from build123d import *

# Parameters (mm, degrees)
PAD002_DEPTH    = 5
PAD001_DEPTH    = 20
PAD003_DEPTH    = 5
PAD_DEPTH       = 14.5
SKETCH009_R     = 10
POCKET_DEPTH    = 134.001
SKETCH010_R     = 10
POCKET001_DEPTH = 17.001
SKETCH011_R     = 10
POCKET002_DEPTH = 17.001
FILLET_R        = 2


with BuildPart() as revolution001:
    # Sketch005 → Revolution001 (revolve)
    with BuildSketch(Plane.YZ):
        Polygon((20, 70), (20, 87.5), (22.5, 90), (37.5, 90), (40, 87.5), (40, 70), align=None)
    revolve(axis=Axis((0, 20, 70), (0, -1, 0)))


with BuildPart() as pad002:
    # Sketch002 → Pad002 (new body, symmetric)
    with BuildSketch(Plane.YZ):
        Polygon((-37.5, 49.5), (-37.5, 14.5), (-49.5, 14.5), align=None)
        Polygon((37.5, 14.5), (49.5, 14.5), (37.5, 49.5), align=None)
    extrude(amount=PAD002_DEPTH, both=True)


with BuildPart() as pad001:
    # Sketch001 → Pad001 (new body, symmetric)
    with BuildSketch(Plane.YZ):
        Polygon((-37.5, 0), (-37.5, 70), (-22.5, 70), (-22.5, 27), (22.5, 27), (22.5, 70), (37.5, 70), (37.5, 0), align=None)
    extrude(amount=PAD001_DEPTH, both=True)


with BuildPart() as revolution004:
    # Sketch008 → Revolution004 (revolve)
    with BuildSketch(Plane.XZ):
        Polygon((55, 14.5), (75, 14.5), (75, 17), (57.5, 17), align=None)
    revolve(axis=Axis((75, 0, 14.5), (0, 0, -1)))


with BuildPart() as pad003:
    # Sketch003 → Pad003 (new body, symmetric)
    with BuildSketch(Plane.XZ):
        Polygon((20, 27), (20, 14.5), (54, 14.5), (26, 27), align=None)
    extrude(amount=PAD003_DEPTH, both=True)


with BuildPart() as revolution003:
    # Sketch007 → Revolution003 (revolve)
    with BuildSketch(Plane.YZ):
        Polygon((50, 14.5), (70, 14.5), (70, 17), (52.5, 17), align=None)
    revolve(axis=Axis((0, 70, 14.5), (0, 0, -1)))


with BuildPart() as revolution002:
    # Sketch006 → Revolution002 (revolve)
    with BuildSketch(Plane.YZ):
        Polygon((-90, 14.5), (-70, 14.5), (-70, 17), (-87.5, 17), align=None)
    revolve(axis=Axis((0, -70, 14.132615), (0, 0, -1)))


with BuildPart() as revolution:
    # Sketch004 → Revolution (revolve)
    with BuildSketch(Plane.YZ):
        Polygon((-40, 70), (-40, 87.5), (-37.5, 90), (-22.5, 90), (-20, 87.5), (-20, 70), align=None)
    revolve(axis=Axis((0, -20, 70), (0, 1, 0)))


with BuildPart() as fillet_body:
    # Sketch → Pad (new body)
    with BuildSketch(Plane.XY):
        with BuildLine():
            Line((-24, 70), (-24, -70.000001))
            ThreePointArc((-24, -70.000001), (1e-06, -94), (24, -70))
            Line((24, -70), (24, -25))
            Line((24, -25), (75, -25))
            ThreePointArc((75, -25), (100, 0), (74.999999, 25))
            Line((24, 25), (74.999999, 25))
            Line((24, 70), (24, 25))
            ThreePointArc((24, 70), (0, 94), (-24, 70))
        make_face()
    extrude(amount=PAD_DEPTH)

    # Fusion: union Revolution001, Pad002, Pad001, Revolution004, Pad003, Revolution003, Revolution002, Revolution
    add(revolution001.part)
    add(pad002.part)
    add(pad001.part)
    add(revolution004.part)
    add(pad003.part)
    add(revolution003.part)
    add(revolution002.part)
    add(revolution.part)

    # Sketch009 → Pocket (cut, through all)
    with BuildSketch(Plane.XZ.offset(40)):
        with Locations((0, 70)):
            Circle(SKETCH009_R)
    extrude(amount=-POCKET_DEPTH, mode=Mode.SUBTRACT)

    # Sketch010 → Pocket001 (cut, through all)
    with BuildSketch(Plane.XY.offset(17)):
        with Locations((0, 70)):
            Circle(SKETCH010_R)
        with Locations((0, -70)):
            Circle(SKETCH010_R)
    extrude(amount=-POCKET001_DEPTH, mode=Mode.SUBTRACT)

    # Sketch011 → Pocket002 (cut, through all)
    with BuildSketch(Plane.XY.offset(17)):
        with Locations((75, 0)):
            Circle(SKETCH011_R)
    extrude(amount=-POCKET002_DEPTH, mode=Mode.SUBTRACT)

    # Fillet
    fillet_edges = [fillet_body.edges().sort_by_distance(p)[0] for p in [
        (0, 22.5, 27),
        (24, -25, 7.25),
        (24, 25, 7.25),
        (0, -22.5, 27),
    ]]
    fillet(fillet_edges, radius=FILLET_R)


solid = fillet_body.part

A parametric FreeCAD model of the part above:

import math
import FreeCAD as App
import Part
import Sketcher

V = App.Vector
Q = App.Units.Quantity


def edges_at(feature, points):
    """Names of the edges that pass closest to the given points."""
    edges = feature.Shape.Edges
    near = lambda p: min(range(len(edges)), key=lambda i: edges[i].distToShape(Part.Vertex(*p))[0])
    return sorted({f"Edge{near(p) + 1}" for p in points})

doc = App.newDocument("Part")
body = doc.addObject("PartDesign::Body", "Body")

# Sketch on YZ plane
sketch1 = doc.addObject("Sketcher::SketchObject", "Sketch")
body.addObject(sketch1)
sketch1.AttachmentSupport = (doc.YZ_Plane, [""])
sketch1.MapMode = "FlatFace"
sketch1.addGeometry(Part.LineSegment(V(20, 87.5, 0), V(20, 70, 0)), False)
sketch1.addGeometry(Part.LineSegment(V(20, 70, 0), V(40, 70, 0)), False)
sketch1.addGeometry(Part.LineSegment(V(40, 70, 0), V(40, 87.5, 0)), False)
sketch1.addGeometry(Part.LineSegment(V(40, 87.5, 0), V(37.5, 90, 0)), False)
sketch1.addGeometry(Part.LineSegment(V(37.5, 90, 0), V(22.5, 90, 0)), False)
sketch1.addGeometry(Part.LineSegment(V(22.5, 90, 0), V(20, 87.5, 0)), False)
sketch1.addGeometry(Part.LineSegment(V(40, 70, 0), V(20, 70, 0)), True)  # axis
sketch1.addConstraint(Sketcher.Constraint("Coincident", 0, 2, 1, 1))
sketch1.addConstraint(Sketcher.Constraint("Coincident", 1, 2, 2, 1))
sketch1.addConstraint(Sketcher.Constraint("Coincident", 2, 2, 3, 1))
sketch1.addConstraint(Sketcher.Constraint("Coincident", 3, 2, 4, 1))
sketch1.addConstraint(Sketcher.Constraint("Coincident", 4, 2, 5, 1))
sketch1.addConstraint(Sketcher.Constraint("Coincident", 5, 2, 0, 1))
sketch1.addConstraint(Sketcher.Constraint("Vertical", 0))
sketch1.addConstraint(Sketcher.Constraint("Horizontal", 1))
sketch1.addConstraint(Sketcher.Constraint("Vertical", 2))
sketch1.addConstraint(Sketcher.Constraint("Horizontal", 4))
sketch1.addConstraint(Sketcher.Constraint("Horizontal", 6))
sketch1.addConstraint(Sketcher.Constraint("Coincident", 6, 1, 1, 2))
sketch1.addConstraint(Sketcher.Constraint("Perpendicular", 3, 5))
sketch1.addConstraint(Sketcher.Constraint("Horizontal", 2, 2, 5, 2))
sketch1.addConstraint(Sketcher.Constraint("Vertical", 5, 2, 6, 2))
sketch1.addConstraint(Sketcher.Constraint("Equal", 3, 5))
sketch1.addConstraint(Sketcher.Constraint("DistanceX", 1, 1, 1, 2, Q("20 mm")))
sketch1.addConstraint(Sketcher.Constraint("DistanceX", 4, 2, 4, 1, Q("15 mm")))
sketch1.addConstraint(Sketcher.Constraint("DistanceY", 0, 2, 0, 1, Q("17.5 mm")))
sketch1.addConstraint(Sketcher.Constraint("DistanceX", -1, 1, 0, 2, Q("20 mm")))
sketch1.addConstraint(Sketcher.Constraint("DistanceY", -1, 1, 0, 2, Q("70 mm")))
revolution = doc.addObject("PartDesign::Revolution", "Revolution")
body.addObject(revolution)
revolution.Profile = sketch1
revolution.ReferenceAxis = (sketch1, ["Axis0"])
revolution.Angle = 360
body2 = doc.addObject("PartDesign::Body", "Body001")
body2.AllowCompound = True

# Sketch on YZ plane
sketch2 = doc.addObject("Sketcher::SketchObject", "Sketch001")
body2.addObject(sketch2)
sketch2.AttachmentSupport = (doc.getObject("YZ_Plane001"), [""])
sketch2.MapMode = "FlatFace"
sketch2.addGeometry(Part.LineSegment(V(-37.5, 14.5, 0), V(-37.5, 49.5, 0)), False)
sketch2.addGeometry(Part.LineSegment(V(-37.5, 49.5, 0), V(-49.5, 14.5, 0)), False)
sketch2.addGeometry(Part.LineSegment(V(-49.5, 14.5, 0), V(-37.5, 14.5, 0)), False)
sketch2.addGeometry(Part.LineSegment(V(37.5, 14.5, 0), V(49.5, 14.5, 0)), False)
sketch2.addGeometry(Part.LineSegment(V(49.5, 14.5, 0), V(37.5, 49.5, 0)), False)
sketch2.addGeometry(Part.LineSegment(V(37.5, 49.5, 0), V(37.5, 14.5, 0)), False)
sketch2.addConstraint(Sketcher.Constraint("Coincident", 0, 2, 1, 1))
sketch2.addConstraint(Sketcher.Constraint("Coincident", 1, 2, 2, 1))
sketch2.addConstraint(Sketcher.Constraint("Coincident", 2, 2, 0, 1))
sketch2.addConstraint(Sketcher.Constraint("Coincident", 3, 2, 4, 1))
sketch2.addConstraint(Sketcher.Constraint("Coincident", 4, 2, 5, 1))
sketch2.addConstraint(Sketcher.Constraint("Coincident", 5, 2, 3, 1))
sketch2.addConstraint(Sketcher.Constraint("Vertical", 0))
sketch2.addConstraint(Sketcher.Constraint("Horizontal", 2))
sketch2.addConstraint(Sketcher.Constraint("Horizontal", 3))
sketch2.addConstraint(Sketcher.Constraint("Vertical", 5))
sketch2.addConstraint(Sketcher.Constraint("Symmetric", 1, 2, 3, 2, -2))
sketch2.addConstraint(Sketcher.Constraint("Symmetric", 0, 2, 4, 2, -2))
sketch2.addConstraint(Sketcher.Constraint("DistanceX", 2, 1, 2, 2, Q("12 mm")))
sketch2.addConstraint(Sketcher.Constraint("DistanceY", 0, 1, 0, 2, Q("35 mm")))
sketch2.addConstraint(Sketcher.Constraint("DistanceX", 2, 2, 3, 2, Q("87 mm")))
sketch2.addConstraint(Sketcher.Constraint("DistanceY", -1, 1, 0, 2, Q("49.5 mm")))
pad1 = doc.addObject("PartDesign::Pad", "Pad")
body2.addObject(pad1)
pad1.Profile = sketch2
pad1.Length = 10
pad1.Midplane = True
body3 = doc.addObject("PartDesign::Body", "Body002")

# Sketch on YZ plane
sketch3 = doc.addObject("Sketcher::SketchObject", "Sketch002")
body3.addObject(sketch3)
sketch3.AttachmentSupport = (doc.getObject("YZ_Plane002"), [""])
sketch3.MapMode = "FlatFace"
sketch3.addGeometry(Part.LineSegment(V(-37.5, 70, 0), V(-37.5, 0, 0)), False)
sketch3.addGeometry(Part.LineSegment(V(-37.5, 0, 0), V(37.5, 0, 0)), False)
sketch3.addGeometry(Part.LineSegment(V(37.5, 0, 0), V(37.5, 70, 0)), False)
sketch3.addGeometry(Part.LineSegment(V(37.5, 70, 0), V(22.5, 70, 0)), False)
sketch3.addGeometry(Part.LineSegment(V(22.5, 70, 0), V(22.5, 27, 0)), False)
sketch3.addGeometry(Part.LineSegment(V(22.5, 27, 0), V(-22.5, 27, 0)), False)
sketch3.addGeometry(Part.LineSegment(V(-22.5, 27, 0), V(-22.5, 70, 0)), False)
sketch3.addGeometry(Part.LineSegment(V(-22.5, 70, 0), V(-37.5, 70, 0)), False)
sketch3.addConstraint(Sketcher.Constraint("Coincident", 0, 2, 1, 1))
sketch3.addConstraint(Sketcher.Constraint("Coincident", 1, 2, 2, 1))
sketch3.addConstraint(Sketcher.Constraint("Coincident", 2, 2, 3, 1))
sketch3.addConstraint(Sketcher.Constraint("Coincident", 3, 2, 4, 1))
sketch3.addConstraint(Sketcher.Constraint("Coincident", 4, 2, 5, 1))
sketch3.addConstraint(Sketcher.Constraint("Coincident", 5, 2, 6, 1))
sketch3.addConstraint(Sketcher.Constraint("Coincident", 6, 2, 7, 1))
sketch3.addConstraint(Sketcher.Constraint("Coincident", 7, 2, 0, 1))
sketch3.addConstraint(Sketcher.Constraint("Vertical", 0))
sketch3.addConstraint(Sketcher.Constraint("Horizontal", 1))
sketch3.addConstraint(Sketcher.Constraint("Vertical", 2))
sketch3.addConstraint(Sketcher.Constraint("Horizontal", 3))
sketch3.addConstraint(Sketcher.Constraint("Vertical", 4))
sketch3.addConstraint(Sketcher.Constraint("Horizontal", 5))
sketch3.addConstraint(Sketcher.Constraint("Vertical", 6))
sketch3.addConstraint(Sketcher.Constraint("Horizontal", 7))
sketch3.addConstraint(Sketcher.Constraint("Symmetric", 0, 2, 1, 2, -1, 1))
sketch3.addConstraint(Sketcher.Constraint("Symmetric", 3, 2, 6, 2, -2))
sketch3.addConstraint(Sketcher.Constraint("DistanceX", 1, 1, 1, 2, Q("75 mm")))
sketch3.addConstraint(Sketcher.Constraint("DistanceX", 3, 2, 3, 1, Q("15 mm")))
sketch3.addConstraint(Sketcher.Constraint("DistanceY", 0, 2, 0, 1, Q("70 mm")))
sketch3.addConstraint(Sketcher.Constraint("DistanceY", 4, 2, 4, 1, Q("43 mm")))
pad2 = doc.addObject("PartDesign::Pad", "Pad001")
body3.addObject(pad2)
pad2.Profile = sketch3
pad2.Length = 40
pad2.Midplane = True
body4 = doc.addObject("PartDesign::Body", "Body003")

# Sketch on XZ plane
sketch4 = doc.addObject("Sketcher::SketchObject", "Sketch003")
body4.addObject(sketch4)
sketch4.AttachmentSupport = (doc.getObject("XZ_Plane003"), [""])
sketch4.MapMode = "FlatFace"
sketch4.addGeometry(Part.LineSegment(V(55, 14.5, 0), V(75, 14.5, 0)), False)
sketch4.addGeometry(Part.LineSegment(V(75, 14.5, 0), V(75, 17, 0)), False)
sketch4.addGeometry(Part.LineSegment(V(75, 17, 0), V(57.5, 17, 0)), False)
sketch4.addGeometry(Part.LineSegment(V(57.5, 17, 0), V(55, 14.5, 0)), False)
sketch4.addGeometry(Part.LineSegment(V(75, 17, 0), V(75, 14.5, 0)), True)  # axis
sketch4.addConstraint(Sketcher.Constraint("Coincident", 0, 2, 1, 1))
sketch4.addConstraint(Sketcher.Constraint("Coincident", 1, 2, 2, 1))
sketch4.addConstraint(Sketcher.Constraint("Coincident", 2, 2, 3, 1))
sketch4.addConstraint(Sketcher.Constraint("Coincident", 3, 2, 0, 1))
sketch4.addConstraint(Sketcher.Constraint("Horizontal", 0))
sketch4.addConstraint(Sketcher.Constraint("Vertical", 1))
sketch4.addConstraint(Sketcher.Constraint("Horizontal", 2))
sketch4.addConstraint(Sketcher.Constraint("Vertical", 4))
sketch4.addConstraint(Sketcher.Constraint("Coincident", 4, 1, 1, 2))
sketch4.addConstraint(Sketcher.Constraint("Horizontal", 3, 2, 4, 2))
sketch4.addConstraint(Sketcher.Constraint("DistanceX", 0, 1, 0, 2, Q("20 mm")))
sketch4.addConstraint(Sketcher.Constraint("Angle", 3, Q("-135 deg")))
sketch4.addConstraint(Sketcher.Constraint("DistanceX", 2, 2, 2, 1, Q("17.5 mm")))
sketch4.addConstraint(Sketcher.Constraint("DistanceX", -1, 1, 0, 2, Q("75 mm")))
sketch4.addConstraint(Sketcher.Constraint("DistanceY", -1, 1, 1, 2, Q("17 mm")))
revolution2 = doc.addObject("PartDesign::Revolution", "Revolution001")
body4.addObject(revolution2)
revolution2.Profile = sketch4
revolution2.ReferenceAxis = (sketch4, ["Axis0"])
revolution2.Angle = 360
body5 = doc.addObject("PartDesign::Body", "Body004")

# Sketch on XZ plane
sketch5 = doc.addObject("Sketcher::SketchObject", "Sketch004")
body5.addObject(sketch5)
sketch5.AttachmentSupport = (doc.getObject("XZ_Plane004"), [""])
sketch5.MapMode = "FlatFace"
sketch5.addGeometry(Part.LineSegment(V(20, 27, 0), V(20, 14.5, 0)), False)
sketch5.addGeometry(Part.LineSegment(V(20, 14.5, 0), V(54, 14.5, 0)), False)
sketch5.addGeometry(Part.LineSegment(V(54, 14.5, 0), V(26, 27, 0)), False)
sketch5.addGeometry(Part.LineSegment(V(26, 27, 0), V(20, 27, 0)), False)
sketch5.addConstraint(Sketcher.Constraint("Coincident", 0, 2, 1, 1))
sketch5.addConstraint(Sketcher.Constraint("Coincident", 1, 2, 2, 1))
sketch5.addConstraint(Sketcher.Constraint("Coincident", 2, 2, 3, 1))
sketch5.addConstraint(Sketcher.Constraint("Coincident", 3, 2, 0, 1))
sketch5.addConstraint(Sketcher.Constraint("Vertical", 0))
sketch5.addConstraint(Sketcher.Constraint("Horizontal", 1))
sketch5.addConstraint(Sketcher.Constraint("Horizontal", 3))
sketch5.addConstraint(Sketcher.Constraint("DistanceX", 1, 1, 1, 2, Q("34 mm")))
sketch5.addConstraint(Sketcher.Constraint("DistanceX", 3, 2, 3, 1, Q("6 mm")))
sketch5.addConstraint(Sketcher.Constraint("DistanceY", 0, 2, 0, 1, Q("12.5 mm")))
sketch5.addConstraint(Sketcher.Constraint("DistanceX", -1, 1, 0, 2, Q("20 mm")))
sketch5.addConstraint(Sketcher.Constraint("DistanceY", -1, 1, 2, 2, Q("27 mm")))
pad3 = doc.addObject("PartDesign::Pad", "Pad002")
body5.addObject(pad3)
pad3.Profile = sketch5
pad3.Length = 10
pad3.Midplane = True
body6 = doc.addObject("PartDesign::Body", "Body005")

# Sketch on YZ plane
sketch6 = doc.addObject("Sketcher::SketchObject", "Sketch005")
body6.addObject(sketch6)
sketch6.AttachmentSupport = (doc.getObject("YZ_Plane005"), [""])
sketch6.MapMode = "FlatFace"
sketch6.addGeometry(Part.LineSegment(V(50, 14.5, 0), V(70, 14.5, 0)), False)
sketch6.addGeometry(Part.LineSegment(V(70, 14.5, 0), V(70, 17, 0)), False)
sketch6.addGeometry(Part.LineSegment(V(70, 17, 0), V(52.5, 17, 0)), False)
sketch6.addGeometry(Part.LineSegment(V(52.5, 17, 0), V(50, 14.5, 0)), False)
sketch6.addGeometry(Part.LineSegment(V(70, 17, 0), V(70, 14.5, 0)), True)  # axis
sketch6.addConstraint(Sketcher.Constraint("Coincident", 0, 2, 1, 1))
sketch6.addConstraint(Sketcher.Constraint("Coincident", 1, 2, 2, 1))
sketch6.addConstraint(Sketcher.Constraint("Coincident", 2, 2, 3, 1))
sketch6.addConstraint(Sketcher.Constraint("Coincident", 3, 2, 0, 1))
sketch6.addConstraint(Sketcher.Constraint("Horizontal", 0))
sketch6.addConstraint(Sketcher.Constraint("Vertical", 1))
sketch6.addConstraint(Sketcher.Constraint("Horizontal", 2))
sketch6.addConstraint(Sketcher.Constraint("Vertical", 4))
sketch6.addConstraint(Sketcher.Constraint("Coincident", 4, 1, 1, 2))
sketch6.addConstraint(Sketcher.Constraint("Horizontal", 3, 2, 4, 2))
sketch6.addConstraint(Sketcher.Constraint("DistanceX", 0, 1, 0, 2, Q("20 mm")))
sketch6.addConstraint(Sketcher.Constraint("Angle", 3, Q("-135 deg")))
sketch6.addConstraint(Sketcher.Constraint("DistanceX", 2, 2, 2, 1, Q("17.5 mm")))
sketch6.addConstraint(Sketcher.Constraint("DistanceX", -1, 1, 0, 2, Q("70 mm")))
sketch6.addConstraint(Sketcher.Constraint("DistanceY", -1, 1, 1, 2, Q("17 mm")))
revolution3 = doc.addObject("PartDesign::Revolution", "Revolution002")
body6.addObject(revolution3)
revolution3.Profile = sketch6
revolution3.ReferenceAxis = (sketch6, ["Axis0"])
revolution3.Angle = 360
body7 = doc.addObject("PartDesign::Body", "Body006")

# Sketch on YZ plane
sketch7 = doc.addObject("Sketcher::SketchObject", "Sketch006")
body7.addObject(sketch7)
sketch7.AttachmentSupport = (doc.getObject("YZ_Plane006"), [""])
sketch7.MapMode = "FlatFace"
sketch7.addGeometry(Part.LineSegment(V(-90, 14.5, 0), V(-70, 14.5, 0)), False)
sketch7.addGeometry(Part.LineSegment(V(-70, 14.5, 0), V(-70, 17, 0)), False)
sketch7.addGeometry(Part.LineSegment(V(-70, 17, 0), V(-87.5, 17, 0)), False)
sketch7.addGeometry(Part.LineSegment(V(-87.5, 17, 0), V(-90, 14.5, 0)), False)
sketch7.addGeometry(Part.LineSegment(V(-70, 17, 0), V(-70, 14.5, 0)), True)  # axis
sketch7.addConstraint(Sketcher.Constraint("Coincident", 0, 2, 1, 1))
sketch7.addConstraint(Sketcher.Constraint("Coincident", 1, 2, 2, 1))
sketch7.addConstraint(Sketcher.Constraint("Coincident", 2, 2, 3, 1))
sketch7.addConstraint(Sketcher.Constraint("Coincident", 3, 2, 0, 1))
sketch7.addConstraint(Sketcher.Constraint("Horizontal", 0))
sketch7.addConstraint(Sketcher.Constraint("Vertical", 1))
sketch7.addConstraint(Sketcher.Constraint("Horizontal", 2))
sketch7.addConstraint(Sketcher.Constraint("Vertical", 4))
sketch7.addConstraint(Sketcher.Constraint("Coincident", 4, 1, 1, 2))
sketch7.addConstraint(Sketcher.Constraint("Horizontal", 3, 2, 4, 2))
sketch7.addConstraint(Sketcher.Constraint("DistanceX", 0, 1, 0, 2, Q("20 mm")))
sketch7.addConstraint(Sketcher.Constraint("Angle", 3, Q("-135 deg")))
sketch7.addConstraint(Sketcher.Constraint("DistanceX", 2, 2, 2, 1, Q("17.5 mm")))
sketch7.addConstraint(Sketcher.Constraint("DistanceX", 0, 2, -1, 1, Q("70 mm")))
sketch7.addConstraint(Sketcher.Constraint("DistanceY", -1, 1, 1, 2, Q("17 mm")))
revolution4 = doc.addObject("PartDesign::Revolution", "Revolution003")
body7.addObject(revolution4)
revolution4.Profile = sketch7
revolution4.ReferenceAxis = (sketch7, ["Axis0"])
revolution4.Angle = 360
body8 = doc.addObject("PartDesign::Body", "Body007")

# Sketch on YZ plane
sketch8 = doc.addObject("Sketcher::SketchObject", "Sketch007")
body8.addObject(sketch8)
sketch8.AttachmentSupport = (doc.getObject("YZ_Plane007"), [""])
sketch8.MapMode = "FlatFace"
sketch8.addGeometry(Part.LineSegment(V(-40, 87.5, 0), V(-40, 70, 0)), False)
sketch8.addGeometry(Part.LineSegment(V(-40, 70, 0), V(-20, 70, 0)), False)
sketch8.addGeometry(Part.LineSegment(V(-20, 70, 0), V(-20, 87.5, 0)), False)
sketch8.addGeometry(Part.LineSegment(V(-20, 87.5, 0), V(-22.5, 90, 0)), False)
sketch8.addGeometry(Part.LineSegment(V(-22.5, 90, 0), V(-37.5, 90, 0)), False)
sketch8.addGeometry(Part.LineSegment(V(-37.5, 90, 0), V(-40, 87.5, 0)), False)
sketch8.addGeometry(Part.LineSegment(V(-40, 70, 0), V(-20, 70, 0)), True)  # axis
sketch8.addConstraint(Sketcher.Constraint("Coincident", 0, 2, 1, 1))
sketch8.addConstraint(Sketcher.Constraint("Coincident", 1, 2, 2, 1))
sketch8.addConstraint(Sketcher.Constraint("Coincident", 2, 2, 3, 1))
sketch8.addConstraint(Sketcher.Constraint("Coincident", 3, 2, 4, 1))
sketch8.addConstraint(Sketcher.Constraint("Coincident", 4, 2, 5, 1))
sketch8.addConstraint(Sketcher.Constraint("Coincident", 5, 2, 0, 1))
sketch8.addConstraint(Sketcher.Constraint("Vertical", 0))
sketch8.addConstraint(Sketcher.Constraint("Horizontal", 1))
sketch8.addConstraint(Sketcher.Constraint("Vertical", 2))
sketch8.addConstraint(Sketcher.Constraint("Horizontal", 4))
sketch8.addConstraint(Sketcher.Constraint("Horizontal", 6))
sketch8.addConstraint(Sketcher.Constraint("Coincident", 6, 1, 0, 2))
sketch8.addConstraint(Sketcher.Constraint("Perpendicular", 3, 5))
sketch8.addConstraint(Sketcher.Constraint("Horizontal", 2, 2, 5, 2))
sketch8.addConstraint(Sketcher.Constraint("Vertical", 2, 2, 6, 2))
sketch8.addConstraint(Sketcher.Constraint("Equal", 3, 5))
sketch8.addConstraint(Sketcher.Constraint("DistanceX", 1, 1, 1, 2, Q("20 mm")))
sketch8.addConstraint(Sketcher.Constraint("DistanceX", 4, 2, 4, 1, Q("15 mm")))
sketch8.addConstraint(Sketcher.Constraint("DistanceY", 0, 2, 0, 1, Q("17.5 mm")))
sketch8.addConstraint(Sketcher.Constraint("DistanceX", 0, 2, -1, 1, Q("40 mm")))
sketch8.addConstraint(Sketcher.Constraint("DistanceY", -1, 1, 0, 2, Q("70 mm")))
revolution5 = doc.addObject("PartDesign::Revolution", "Revolution004")
body8.addObject(revolution5)
revolution5.Profile = sketch8
revolution5.ReferenceAxis = (sketch8, ["Axis0"])
revolution5.Angle = 360
body9 = doc.addObject("PartDesign::Body", "Body008")
body9.AllowCompound = True

# Sketch on XY plane
sketch9 = doc.addObject("Sketcher::SketchObject", "Sketch008")
body9.addObject(sketch9)
sketch9.AttachmentSupport = (doc.getObject("XY_Plane008"), [""])
sketch9.MapMode = "FlatFace"
sketch9.addGeometry(Part.LineSegment(V(-24, 70, 0), V(-24, -70.000001, 0)), False)
sketch9.addGeometry(Part.ArcOfCircle(Part.Circle(V(0, -70, 0), V(0, 0, 1), 24), math.radians(-179.999998), math.radians(0)), False)
sketch9.addGeometry(Part.LineSegment(V(24, -70, 0), V(24, -25, 0)), False)
sketch9.addGeometry(Part.LineSegment(V(24, -25, 0), V(75, -25, 0)), False)
sketch9.addGeometry(Part.ArcOfCircle(Part.Circle(V(75, 0, 0), V(0, 0, 1), 25), math.radians(-90), math.radians(90.000002)), False)
sketch9.addGeometry(Part.LineSegment(V(74.999999, 25, 0), V(24, 25, 0)), False)
sketch9.addGeometry(Part.LineSegment(V(24, 25, 0), V(24, 70, 0)), False)
sketch9.addGeometry(Part.ArcOfCircle(Part.Circle(V(0, 70, 0), V(0, 0, 1), 24), math.radians(0), math.radians(180)), False)
sketch9.addConstraint(Sketcher.Constraint("Tangent", 0, 2, 1, 1))
sketch9.addConstraint(Sketcher.Constraint("Tangent", 1, 2, 2, 1))
sketch9.addConstraint(Sketcher.Constraint("Coincident", 2, 2, 3, 1))
sketch9.addConstraint(Sketcher.Constraint("Tangent", 3, 2, 4, 1))
sketch9.addConstraint(Sketcher.Constraint("Tangent", 4, 2, 5, 1))
sketch9.addConstraint(Sketcher.Constraint("Coincident", 5, 2, 6, 1))
sketch9.addConstraint(Sketcher.Constraint("Tangent", 6, 2, 7, 1))
sketch9.addConstraint(Sketcher.Constraint("Tangent", 7, 2, 0, 1))
sketch9.addConstraint(Sketcher.Constraint("Vertical", 0))
sketch9.addConstraint(Sketcher.Constraint("Vertical", 2))
sketch9.addConstraint(Sketcher.Constraint("Horizontal", 3))
sketch9.addConstraint(Sketcher.Constraint("Horizontal", 5))
sketch9.addConstraint(Sketcher.Constraint("Vertical", 6))
sketch9.addConstraint(Sketcher.Constraint("Equal", 1, 7))
sketch9.addConstraint(Sketcher.Constraint("Symmetric", 1, 3, 7, 3, -1, 1))
sketch9.addConstraint(Sketcher.Constraint("PointOnObject", 4, 3, -1))
sketch9.addConstraint(Sketcher.Constraint("Radius", 1, Q("24 mm")))
sketch9.addConstraint(Sketcher.Constraint("Radius", 4, Q("25 mm")))
sketch9.addConstraint(Sketcher.Constraint("DistanceX", 3, 1, 3, 2, Q("51 mm")))
sketch9.addConstraint(Sketcher.Constraint("DistanceY", 0, 2, 0, 1, Q("140.000001 mm")))
pad4 = doc.addObject("PartDesign::Pad", "Pad003")
body9.addObject(pad4)
pad4.Profile = sketch9
pad4.Length = 14.5
doc.recompute()

boolean = doc.addObject("PartDesign::Boolean", "Boolean")
body9.addObject(boolean)
boolean.Type = "Fuse"
boolean.addObjects([body])
doc.recompute()

boolean2 = doc.addObject("PartDesign::Boolean", "Boolean001")
body9.addObject(boolean2)
boolean2.Type = "Fuse"
boolean2.addObjects([body2])
doc.recompute()

boolean3 = doc.addObject("PartDesign::Boolean", "Boolean002")
body9.addObject(boolean3)
boolean3.Type = "Fuse"
boolean3.addObjects([body3])
doc.recompute()

boolean4 = doc.addObject("PartDesign::Boolean", "Boolean003")
body9.addObject(boolean4)
boolean4.Type = "Fuse"
boolean4.addObjects([body4])
doc.recompute()

boolean5 = doc.addObject("PartDesign::Boolean", "Boolean004")
body9.addObject(boolean5)
boolean5.Type = "Fuse"
boolean5.addObjects([body5])
doc.recompute()

boolean6 = doc.addObject("PartDesign::Boolean", "Boolean005")
body9.addObject(boolean6)
boolean6.Type = "Fuse"
boolean6.addObjects([body6])
doc.recompute()

boolean7 = doc.addObject("PartDesign::Boolean", "Boolean006")
body9.addObject(boolean7)
boolean7.Type = "Fuse"
boolean7.addObjects([body7])
doc.recompute()

boolean8 = doc.addObject("PartDesign::Boolean", "Boolean007")
body9.addObject(boolean8)
boolean8.Type = "Fuse"
boolean8.addObjects([body8])

# Sketch on XZ plane
sketch10 = doc.addObject("Sketcher::SketchObject", "Sketch009")
body9.addObject(sketch10)
sketch10.AttachmentSupport = (doc.getObject("XZ_Plane008"), [""])
sketch10.MapMode = "FlatFace"
sketch10.AttachmentOffset = App.Placement(V(0, 0, 40), App.Rotation())
sketch10.addGeometry(Part.Circle(V(0, 70, 0), V(0, 0, 1), 10), False)
sketch10.addConstraint(Sketcher.Constraint("PointOnObject", 0, 3, -2))
sketch10.addConstraint(Sketcher.Constraint("Diameter", 0, Q("20 mm")))
sketch10.addConstraint(Sketcher.Constraint("DistanceY", -1, 1, 0, 3, Q("70 mm")))
pocket1 = doc.addObject("PartDesign::Pocket", "Pocket")
body9.addObject(pocket1)
pocket1.Profile = sketch10
pocket1.Type = "ThroughAll"

# Sketch on XY plane
sketch11 = doc.addObject("Sketcher::SketchObject", "Sketch010")
body9.addObject(sketch11)
sketch11.AttachmentSupport = (doc.getObject("XY_Plane008"), [""])
sketch11.MapMode = "FlatFace"
sketch11.AttachmentOffset = App.Placement(V(0, 0, 17), App.Rotation())
sketch11.addGeometry(Part.Circle(V(0, 70, 0), V(0, 0, 1), 10), False)
sketch11.addGeometry(Part.Circle(V(0, -70, 0), V(0, 0, 1), 10), False)
sketch11.addConstraint(Sketcher.Constraint("Equal", 0, 1))
sketch11.addConstraint(Sketcher.Constraint("Symmetric", 0, 3, 1, 3, -1, 1))
sketch11.addConstraint(Sketcher.Constraint("PointOnObject", 0, 3, -2))
sketch11.addConstraint(Sketcher.Constraint("Diameter", 0, Q("20 mm")))
sketch11.addConstraint(Sketcher.Constraint("DistanceY", -1, 1, 0, 3, Q("70 mm")))
pocket2 = doc.addObject("PartDesign::Pocket", "Pocket001")
body9.addObject(pocket2)
pocket2.Profile = sketch11
pocket2.Type = "ThroughAll"

# Sketch on XY plane
sketch12 = doc.addObject("Sketcher::SketchObject", "Sketch011")
body9.addObject(sketch12)
sketch12.AttachmentSupport = (doc.getObject("XY_Plane008"), [""])
sketch12.MapMode = "FlatFace"
sketch12.AttachmentOffset = App.Placement(V(0, 0, 17), App.Rotation())
sketch12.addGeometry(Part.Circle(V(75, 0, 0), V(0, 0, 1), 10), False)
sketch12.addConstraint(Sketcher.Constraint("PointOnObject", 0, 3, -1))
sketch12.addConstraint(Sketcher.Constraint("Diameter", 0, Q("20 mm")))
sketch12.addConstraint(Sketcher.Constraint("DistanceX", -1, 1, 0, 3, Q("75 mm")))
pocket3 = doc.addObject("PartDesign::Pocket", "Pocket002")
body9.addObject(pocket3)
pocket3.Profile = sketch12
pocket3.Type = "ThroughAll"
doc.recompute()

fillet = doc.addObject("PartDesign::Fillet", "Fillet")
body9.addObject(fillet)
fillet.Base = (pocket3, edges_at(pocket3, [
    (0, 22.5, 27),
    (24, -25, 7.25),
    (24, 25, 7.25),
    (0, -22.5, 27),
]))
fillet.Radius = 2

doc.recompute()
